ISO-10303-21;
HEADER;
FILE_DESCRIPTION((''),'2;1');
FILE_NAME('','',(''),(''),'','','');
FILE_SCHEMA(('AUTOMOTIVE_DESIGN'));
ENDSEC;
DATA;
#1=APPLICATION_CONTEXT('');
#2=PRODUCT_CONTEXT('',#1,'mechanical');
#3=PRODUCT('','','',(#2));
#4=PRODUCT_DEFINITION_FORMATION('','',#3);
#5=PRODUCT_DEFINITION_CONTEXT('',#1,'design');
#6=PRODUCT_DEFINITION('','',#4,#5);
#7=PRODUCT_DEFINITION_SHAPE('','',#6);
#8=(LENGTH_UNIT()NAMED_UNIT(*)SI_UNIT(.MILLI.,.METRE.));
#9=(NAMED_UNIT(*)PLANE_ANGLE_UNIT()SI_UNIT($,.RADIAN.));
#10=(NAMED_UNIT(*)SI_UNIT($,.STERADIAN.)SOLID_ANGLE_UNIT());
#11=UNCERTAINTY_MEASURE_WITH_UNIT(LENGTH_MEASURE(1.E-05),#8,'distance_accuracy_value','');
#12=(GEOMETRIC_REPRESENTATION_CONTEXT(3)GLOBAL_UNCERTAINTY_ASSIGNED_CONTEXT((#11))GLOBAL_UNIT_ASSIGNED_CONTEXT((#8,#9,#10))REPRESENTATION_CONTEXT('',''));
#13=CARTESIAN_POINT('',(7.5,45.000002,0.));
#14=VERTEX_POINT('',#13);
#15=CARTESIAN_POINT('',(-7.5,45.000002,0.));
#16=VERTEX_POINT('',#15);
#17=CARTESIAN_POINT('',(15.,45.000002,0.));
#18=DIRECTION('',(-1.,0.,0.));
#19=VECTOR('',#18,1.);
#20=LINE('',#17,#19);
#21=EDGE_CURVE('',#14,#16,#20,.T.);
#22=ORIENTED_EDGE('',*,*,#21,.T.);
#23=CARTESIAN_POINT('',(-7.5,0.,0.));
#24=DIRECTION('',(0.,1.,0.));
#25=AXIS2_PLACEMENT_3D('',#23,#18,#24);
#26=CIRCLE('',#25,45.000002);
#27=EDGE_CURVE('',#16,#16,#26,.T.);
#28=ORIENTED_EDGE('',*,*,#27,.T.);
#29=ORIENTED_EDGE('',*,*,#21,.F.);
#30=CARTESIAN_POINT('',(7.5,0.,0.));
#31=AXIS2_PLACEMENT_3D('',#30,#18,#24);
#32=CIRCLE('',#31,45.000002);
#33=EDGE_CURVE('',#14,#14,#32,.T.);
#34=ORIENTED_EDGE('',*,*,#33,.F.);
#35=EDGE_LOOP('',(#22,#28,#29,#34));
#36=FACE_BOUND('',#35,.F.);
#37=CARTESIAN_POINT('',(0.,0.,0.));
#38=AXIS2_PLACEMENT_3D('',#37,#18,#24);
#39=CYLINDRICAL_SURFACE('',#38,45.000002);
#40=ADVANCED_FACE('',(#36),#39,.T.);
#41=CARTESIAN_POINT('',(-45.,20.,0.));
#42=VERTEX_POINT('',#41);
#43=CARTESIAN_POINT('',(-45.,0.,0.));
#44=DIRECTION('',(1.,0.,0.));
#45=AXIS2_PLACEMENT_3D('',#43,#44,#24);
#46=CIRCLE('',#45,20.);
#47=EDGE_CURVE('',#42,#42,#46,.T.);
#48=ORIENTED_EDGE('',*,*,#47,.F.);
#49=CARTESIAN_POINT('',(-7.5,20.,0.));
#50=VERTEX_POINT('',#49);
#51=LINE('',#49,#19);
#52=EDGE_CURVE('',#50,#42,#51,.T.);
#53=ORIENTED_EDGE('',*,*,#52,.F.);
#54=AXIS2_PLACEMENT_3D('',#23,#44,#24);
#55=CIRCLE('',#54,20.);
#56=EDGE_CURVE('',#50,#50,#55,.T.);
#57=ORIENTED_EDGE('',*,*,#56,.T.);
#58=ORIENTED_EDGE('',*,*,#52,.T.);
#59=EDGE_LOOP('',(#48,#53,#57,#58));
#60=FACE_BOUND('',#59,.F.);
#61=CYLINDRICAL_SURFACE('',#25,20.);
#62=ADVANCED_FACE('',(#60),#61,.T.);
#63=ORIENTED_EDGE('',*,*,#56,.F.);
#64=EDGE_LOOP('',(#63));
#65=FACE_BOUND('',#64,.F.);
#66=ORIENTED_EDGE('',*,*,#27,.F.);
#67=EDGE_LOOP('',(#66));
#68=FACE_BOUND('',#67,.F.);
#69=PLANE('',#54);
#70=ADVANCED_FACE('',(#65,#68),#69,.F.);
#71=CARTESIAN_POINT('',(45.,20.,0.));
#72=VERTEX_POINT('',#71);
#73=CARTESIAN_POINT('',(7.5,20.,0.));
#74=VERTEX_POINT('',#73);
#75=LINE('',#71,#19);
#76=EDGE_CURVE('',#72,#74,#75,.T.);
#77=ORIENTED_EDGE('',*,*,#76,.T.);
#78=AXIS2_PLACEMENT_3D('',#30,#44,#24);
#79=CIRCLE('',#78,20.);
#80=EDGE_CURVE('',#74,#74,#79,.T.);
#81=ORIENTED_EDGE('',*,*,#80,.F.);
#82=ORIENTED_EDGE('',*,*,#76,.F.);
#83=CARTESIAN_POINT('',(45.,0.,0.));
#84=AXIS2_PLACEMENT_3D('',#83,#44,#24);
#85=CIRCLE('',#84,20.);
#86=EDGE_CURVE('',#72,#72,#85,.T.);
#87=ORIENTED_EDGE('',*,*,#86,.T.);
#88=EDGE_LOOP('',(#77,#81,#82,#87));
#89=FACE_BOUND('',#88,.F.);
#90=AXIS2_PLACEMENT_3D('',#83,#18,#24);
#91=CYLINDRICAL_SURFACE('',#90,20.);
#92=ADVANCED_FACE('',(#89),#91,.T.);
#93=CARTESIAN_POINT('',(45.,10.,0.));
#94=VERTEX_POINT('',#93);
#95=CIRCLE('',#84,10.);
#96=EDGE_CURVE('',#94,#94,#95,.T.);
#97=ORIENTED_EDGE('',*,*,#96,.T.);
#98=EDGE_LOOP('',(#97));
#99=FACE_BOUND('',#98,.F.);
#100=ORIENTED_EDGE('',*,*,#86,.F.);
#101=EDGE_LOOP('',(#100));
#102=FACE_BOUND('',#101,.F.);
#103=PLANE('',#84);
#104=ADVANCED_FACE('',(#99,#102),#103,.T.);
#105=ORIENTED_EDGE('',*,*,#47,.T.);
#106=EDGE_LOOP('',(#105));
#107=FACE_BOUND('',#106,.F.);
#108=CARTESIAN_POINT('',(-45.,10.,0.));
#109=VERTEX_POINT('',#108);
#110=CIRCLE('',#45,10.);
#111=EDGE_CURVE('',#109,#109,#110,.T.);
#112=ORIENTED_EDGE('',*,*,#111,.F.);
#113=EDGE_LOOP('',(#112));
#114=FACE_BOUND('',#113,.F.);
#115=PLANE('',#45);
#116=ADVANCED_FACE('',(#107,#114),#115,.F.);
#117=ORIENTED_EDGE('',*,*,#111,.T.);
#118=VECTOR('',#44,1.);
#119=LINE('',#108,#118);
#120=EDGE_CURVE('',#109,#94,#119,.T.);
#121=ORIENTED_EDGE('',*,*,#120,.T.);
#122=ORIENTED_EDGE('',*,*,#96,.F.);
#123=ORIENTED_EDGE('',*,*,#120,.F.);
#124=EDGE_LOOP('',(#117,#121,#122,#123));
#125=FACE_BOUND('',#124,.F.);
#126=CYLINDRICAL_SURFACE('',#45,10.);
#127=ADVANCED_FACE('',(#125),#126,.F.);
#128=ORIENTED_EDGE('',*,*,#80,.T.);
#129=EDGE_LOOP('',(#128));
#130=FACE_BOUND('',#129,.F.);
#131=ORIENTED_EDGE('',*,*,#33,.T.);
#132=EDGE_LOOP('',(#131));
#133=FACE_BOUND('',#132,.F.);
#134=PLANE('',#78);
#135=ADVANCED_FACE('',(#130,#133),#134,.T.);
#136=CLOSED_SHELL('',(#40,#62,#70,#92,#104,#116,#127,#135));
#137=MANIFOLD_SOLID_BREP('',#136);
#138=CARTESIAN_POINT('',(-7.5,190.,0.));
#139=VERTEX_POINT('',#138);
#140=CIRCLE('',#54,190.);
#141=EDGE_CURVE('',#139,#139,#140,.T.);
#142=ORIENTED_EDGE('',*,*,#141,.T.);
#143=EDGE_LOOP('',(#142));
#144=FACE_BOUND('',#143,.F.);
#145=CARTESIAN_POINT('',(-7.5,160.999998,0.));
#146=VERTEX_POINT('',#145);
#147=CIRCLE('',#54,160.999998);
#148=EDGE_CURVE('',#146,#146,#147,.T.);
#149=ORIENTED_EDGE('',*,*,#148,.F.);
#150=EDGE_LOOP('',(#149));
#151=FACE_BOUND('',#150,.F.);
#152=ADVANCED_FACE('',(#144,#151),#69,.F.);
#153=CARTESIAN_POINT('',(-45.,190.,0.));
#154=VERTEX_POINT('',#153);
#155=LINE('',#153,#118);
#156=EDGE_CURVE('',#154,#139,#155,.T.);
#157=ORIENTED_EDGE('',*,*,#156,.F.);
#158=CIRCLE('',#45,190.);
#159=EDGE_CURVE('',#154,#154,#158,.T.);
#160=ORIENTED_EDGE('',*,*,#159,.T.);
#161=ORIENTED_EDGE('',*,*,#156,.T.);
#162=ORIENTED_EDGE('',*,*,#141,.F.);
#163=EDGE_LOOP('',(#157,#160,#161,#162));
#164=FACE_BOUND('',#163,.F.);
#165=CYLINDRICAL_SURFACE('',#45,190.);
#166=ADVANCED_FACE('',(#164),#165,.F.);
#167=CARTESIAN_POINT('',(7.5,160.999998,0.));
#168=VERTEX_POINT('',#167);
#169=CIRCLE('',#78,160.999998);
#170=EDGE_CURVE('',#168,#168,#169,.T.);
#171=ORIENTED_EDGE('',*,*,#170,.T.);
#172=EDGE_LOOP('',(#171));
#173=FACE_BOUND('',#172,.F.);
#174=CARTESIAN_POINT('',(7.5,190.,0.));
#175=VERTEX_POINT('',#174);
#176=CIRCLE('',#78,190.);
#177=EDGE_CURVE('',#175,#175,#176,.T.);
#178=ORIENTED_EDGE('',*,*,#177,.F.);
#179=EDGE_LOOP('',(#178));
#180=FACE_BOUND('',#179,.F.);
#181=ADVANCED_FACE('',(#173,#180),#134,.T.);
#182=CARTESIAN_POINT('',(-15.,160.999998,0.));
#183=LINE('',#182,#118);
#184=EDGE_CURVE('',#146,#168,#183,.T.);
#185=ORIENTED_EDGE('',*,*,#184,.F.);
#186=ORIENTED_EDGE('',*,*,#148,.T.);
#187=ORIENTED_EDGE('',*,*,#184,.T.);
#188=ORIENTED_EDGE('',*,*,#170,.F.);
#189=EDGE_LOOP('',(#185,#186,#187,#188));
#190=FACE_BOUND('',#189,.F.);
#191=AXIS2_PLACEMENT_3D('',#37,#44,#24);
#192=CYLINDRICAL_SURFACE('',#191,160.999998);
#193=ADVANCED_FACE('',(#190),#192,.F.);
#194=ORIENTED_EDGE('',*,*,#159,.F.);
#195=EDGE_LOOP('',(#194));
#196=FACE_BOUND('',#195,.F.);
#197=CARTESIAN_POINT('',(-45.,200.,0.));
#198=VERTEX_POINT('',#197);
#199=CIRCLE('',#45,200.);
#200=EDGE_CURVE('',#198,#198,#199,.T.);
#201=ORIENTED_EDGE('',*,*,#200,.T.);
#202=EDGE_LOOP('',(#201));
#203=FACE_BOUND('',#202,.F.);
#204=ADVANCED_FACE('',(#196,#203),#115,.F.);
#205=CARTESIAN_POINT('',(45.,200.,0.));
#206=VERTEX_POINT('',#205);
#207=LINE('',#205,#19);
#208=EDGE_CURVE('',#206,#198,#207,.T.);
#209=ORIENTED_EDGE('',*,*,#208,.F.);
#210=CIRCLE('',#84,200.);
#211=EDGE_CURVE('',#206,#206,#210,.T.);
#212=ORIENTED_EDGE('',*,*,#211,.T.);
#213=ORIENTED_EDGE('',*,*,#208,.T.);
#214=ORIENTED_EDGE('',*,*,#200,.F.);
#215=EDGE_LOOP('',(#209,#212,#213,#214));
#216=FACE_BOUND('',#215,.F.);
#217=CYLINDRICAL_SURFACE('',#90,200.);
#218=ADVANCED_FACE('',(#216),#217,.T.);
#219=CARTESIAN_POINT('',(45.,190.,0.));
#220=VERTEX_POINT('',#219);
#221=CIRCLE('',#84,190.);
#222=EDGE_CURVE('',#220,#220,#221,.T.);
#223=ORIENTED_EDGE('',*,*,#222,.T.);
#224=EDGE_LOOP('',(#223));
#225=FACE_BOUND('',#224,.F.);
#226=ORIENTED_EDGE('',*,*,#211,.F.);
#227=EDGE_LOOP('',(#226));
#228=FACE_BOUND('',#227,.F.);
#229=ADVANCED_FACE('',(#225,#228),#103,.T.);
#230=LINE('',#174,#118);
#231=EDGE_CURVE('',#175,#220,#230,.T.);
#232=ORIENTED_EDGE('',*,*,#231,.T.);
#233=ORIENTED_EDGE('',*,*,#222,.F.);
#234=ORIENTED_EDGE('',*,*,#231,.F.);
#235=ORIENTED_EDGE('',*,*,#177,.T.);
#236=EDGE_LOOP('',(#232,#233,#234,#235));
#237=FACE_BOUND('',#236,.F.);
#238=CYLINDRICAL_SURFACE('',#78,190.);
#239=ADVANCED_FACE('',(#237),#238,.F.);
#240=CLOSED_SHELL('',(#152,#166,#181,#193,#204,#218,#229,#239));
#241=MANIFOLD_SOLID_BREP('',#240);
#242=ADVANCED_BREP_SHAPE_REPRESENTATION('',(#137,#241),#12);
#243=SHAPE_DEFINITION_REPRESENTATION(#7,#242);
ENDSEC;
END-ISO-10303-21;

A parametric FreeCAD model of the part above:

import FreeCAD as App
import Part
import Sketcher

V = App.Vector
Q = App.Units.Quantity


def add_polygon(sketch, points):
    """Adds a closed chain of lines whose ends are joined by coincident constraints."""
    first, n = sketch.GeometryCount, len(points)
    for a, b in zip(points, points[1:] + points[:1]):
        sketch.addGeometry(Part.LineSegment(App.Vector(*a, 0), App.Vector(*b, 0)), False)
    for i in range(n):
        sketch.addConstraint(Sketcher.Constraint("Coincident", first + i, 2, first + (i + 1) % n, 1))

doc = App.newDocument("Part")
body = doc.addObject("PartDesign::Body", "Body")
body.AllowCompound = True

# Sketch on XY plane
sketch1 = body.newObject("Sketcher::SketchObject", "Sketch")
sketch1.AttachmentSupport = (doc.getObject("XY_Plane"), [""])
sketch1.MapMode = "FlatFace"
add_polygon(sketch1, [(-45, 20), (-45, 10), (45, 10), (45, 20), (7.5, 20), (7.5, 190), (45, 190), (45, 200), (-45, 200), (-45, 190), (-7.5, 190), (-7.5, 20)])  # lines 0-11
sketch1.addConstraint([
    Sketcher.Constraint("Vertical", 0),
    Sketcher.Constraint("Horizontal", 1),
    Sketcher.Constraint("Vertical", 2),
    Sketcher.Constraint("Horizontal", 3),
    Sketcher.Constraint("Vertical", 4),
    Sketcher.Constraint("Horizontal", 5),
    Sketcher.Constraint("Vertical", 6),
    Sketcher.Constraint("Horizontal", 7),
    Sketcher.Constraint("Vertical", 8),
    Sketcher.Constraint("Horizontal", 9),
    Sketcher.Constraint("Vertical", 10),
    Sketcher.Constraint("Horizontal", 11),
    Sketcher.Constraint("Symmetric", 5, 2, 8, 2, -2),
    Sketcher.Constraint("Symmetric", 3, 2, 10, 2, -2),
    Sketcher.Constraint("Vertical", 2, 2, 5, 2),
    Sketcher.Constraint("Vertical", 0, 2, 7, 2),
    Sketcher.Constraint("Equal", 2, 6),
    Sketcher.Constraint("DistanceX", 1, 1, 1, 2, Q("90 mm")),
    Sketcher.Constraint("DistanceY", 0, 2, 0, 1, Q("10 mm")),
    Sketcher.Constraint("DistanceY", 4, 1, 4, 2, Q("170 mm")),
    Sketcher.Constraint("DistanceX", 3, 2, 3, 1, Q("37.5 mm")),
    Sketcher.Constraint("DistanceY", -1, 1, 0, 2, Q("10 mm")),
])
revolution = body.newObject("PartDesign::Revolution", "Revolution")
revolution.Profile = sketch1
revolution.ReferenceAxis = (sketch1, ["H_Axis"])
revolution.Angle = 360

# Sketch on YZ plane
sketch2 = body.newObject("Sketcher::SketchObject", "Sketch001")
sketch2.AttachmentSupport = (doc.getObject("YZ_Plane"), [""])
sketch2.MapMode = "FlatFace"
sketch2.addGeometry([
    Part.Circle(V(0, 0, 0), V(0, 0, 1), 160.999998),
    Part.Circle(V(0, 0, 0), V(0, 0, 1), 45.000002),
], False)
sketch2.addConstraint([
    Sketcher.Constraint("Coincident", 0, 3, -1, 1),
    Sketcher.Constraint("Coincident", 1, 3, -1, 1),
    Sketcher.Constraint("Diameter", 0, Q("321.999996 mm")),
    Sketcher.Constraint("Diameter", 1, Q("90.000004 mm")),
])
pocket1 = body.newObject("PartDesign::Pocket", "Pocket")
pocket1.Profile = sketch2
pocket1.Length = 30
pocket1.Midplane = True

doc.recompute()
